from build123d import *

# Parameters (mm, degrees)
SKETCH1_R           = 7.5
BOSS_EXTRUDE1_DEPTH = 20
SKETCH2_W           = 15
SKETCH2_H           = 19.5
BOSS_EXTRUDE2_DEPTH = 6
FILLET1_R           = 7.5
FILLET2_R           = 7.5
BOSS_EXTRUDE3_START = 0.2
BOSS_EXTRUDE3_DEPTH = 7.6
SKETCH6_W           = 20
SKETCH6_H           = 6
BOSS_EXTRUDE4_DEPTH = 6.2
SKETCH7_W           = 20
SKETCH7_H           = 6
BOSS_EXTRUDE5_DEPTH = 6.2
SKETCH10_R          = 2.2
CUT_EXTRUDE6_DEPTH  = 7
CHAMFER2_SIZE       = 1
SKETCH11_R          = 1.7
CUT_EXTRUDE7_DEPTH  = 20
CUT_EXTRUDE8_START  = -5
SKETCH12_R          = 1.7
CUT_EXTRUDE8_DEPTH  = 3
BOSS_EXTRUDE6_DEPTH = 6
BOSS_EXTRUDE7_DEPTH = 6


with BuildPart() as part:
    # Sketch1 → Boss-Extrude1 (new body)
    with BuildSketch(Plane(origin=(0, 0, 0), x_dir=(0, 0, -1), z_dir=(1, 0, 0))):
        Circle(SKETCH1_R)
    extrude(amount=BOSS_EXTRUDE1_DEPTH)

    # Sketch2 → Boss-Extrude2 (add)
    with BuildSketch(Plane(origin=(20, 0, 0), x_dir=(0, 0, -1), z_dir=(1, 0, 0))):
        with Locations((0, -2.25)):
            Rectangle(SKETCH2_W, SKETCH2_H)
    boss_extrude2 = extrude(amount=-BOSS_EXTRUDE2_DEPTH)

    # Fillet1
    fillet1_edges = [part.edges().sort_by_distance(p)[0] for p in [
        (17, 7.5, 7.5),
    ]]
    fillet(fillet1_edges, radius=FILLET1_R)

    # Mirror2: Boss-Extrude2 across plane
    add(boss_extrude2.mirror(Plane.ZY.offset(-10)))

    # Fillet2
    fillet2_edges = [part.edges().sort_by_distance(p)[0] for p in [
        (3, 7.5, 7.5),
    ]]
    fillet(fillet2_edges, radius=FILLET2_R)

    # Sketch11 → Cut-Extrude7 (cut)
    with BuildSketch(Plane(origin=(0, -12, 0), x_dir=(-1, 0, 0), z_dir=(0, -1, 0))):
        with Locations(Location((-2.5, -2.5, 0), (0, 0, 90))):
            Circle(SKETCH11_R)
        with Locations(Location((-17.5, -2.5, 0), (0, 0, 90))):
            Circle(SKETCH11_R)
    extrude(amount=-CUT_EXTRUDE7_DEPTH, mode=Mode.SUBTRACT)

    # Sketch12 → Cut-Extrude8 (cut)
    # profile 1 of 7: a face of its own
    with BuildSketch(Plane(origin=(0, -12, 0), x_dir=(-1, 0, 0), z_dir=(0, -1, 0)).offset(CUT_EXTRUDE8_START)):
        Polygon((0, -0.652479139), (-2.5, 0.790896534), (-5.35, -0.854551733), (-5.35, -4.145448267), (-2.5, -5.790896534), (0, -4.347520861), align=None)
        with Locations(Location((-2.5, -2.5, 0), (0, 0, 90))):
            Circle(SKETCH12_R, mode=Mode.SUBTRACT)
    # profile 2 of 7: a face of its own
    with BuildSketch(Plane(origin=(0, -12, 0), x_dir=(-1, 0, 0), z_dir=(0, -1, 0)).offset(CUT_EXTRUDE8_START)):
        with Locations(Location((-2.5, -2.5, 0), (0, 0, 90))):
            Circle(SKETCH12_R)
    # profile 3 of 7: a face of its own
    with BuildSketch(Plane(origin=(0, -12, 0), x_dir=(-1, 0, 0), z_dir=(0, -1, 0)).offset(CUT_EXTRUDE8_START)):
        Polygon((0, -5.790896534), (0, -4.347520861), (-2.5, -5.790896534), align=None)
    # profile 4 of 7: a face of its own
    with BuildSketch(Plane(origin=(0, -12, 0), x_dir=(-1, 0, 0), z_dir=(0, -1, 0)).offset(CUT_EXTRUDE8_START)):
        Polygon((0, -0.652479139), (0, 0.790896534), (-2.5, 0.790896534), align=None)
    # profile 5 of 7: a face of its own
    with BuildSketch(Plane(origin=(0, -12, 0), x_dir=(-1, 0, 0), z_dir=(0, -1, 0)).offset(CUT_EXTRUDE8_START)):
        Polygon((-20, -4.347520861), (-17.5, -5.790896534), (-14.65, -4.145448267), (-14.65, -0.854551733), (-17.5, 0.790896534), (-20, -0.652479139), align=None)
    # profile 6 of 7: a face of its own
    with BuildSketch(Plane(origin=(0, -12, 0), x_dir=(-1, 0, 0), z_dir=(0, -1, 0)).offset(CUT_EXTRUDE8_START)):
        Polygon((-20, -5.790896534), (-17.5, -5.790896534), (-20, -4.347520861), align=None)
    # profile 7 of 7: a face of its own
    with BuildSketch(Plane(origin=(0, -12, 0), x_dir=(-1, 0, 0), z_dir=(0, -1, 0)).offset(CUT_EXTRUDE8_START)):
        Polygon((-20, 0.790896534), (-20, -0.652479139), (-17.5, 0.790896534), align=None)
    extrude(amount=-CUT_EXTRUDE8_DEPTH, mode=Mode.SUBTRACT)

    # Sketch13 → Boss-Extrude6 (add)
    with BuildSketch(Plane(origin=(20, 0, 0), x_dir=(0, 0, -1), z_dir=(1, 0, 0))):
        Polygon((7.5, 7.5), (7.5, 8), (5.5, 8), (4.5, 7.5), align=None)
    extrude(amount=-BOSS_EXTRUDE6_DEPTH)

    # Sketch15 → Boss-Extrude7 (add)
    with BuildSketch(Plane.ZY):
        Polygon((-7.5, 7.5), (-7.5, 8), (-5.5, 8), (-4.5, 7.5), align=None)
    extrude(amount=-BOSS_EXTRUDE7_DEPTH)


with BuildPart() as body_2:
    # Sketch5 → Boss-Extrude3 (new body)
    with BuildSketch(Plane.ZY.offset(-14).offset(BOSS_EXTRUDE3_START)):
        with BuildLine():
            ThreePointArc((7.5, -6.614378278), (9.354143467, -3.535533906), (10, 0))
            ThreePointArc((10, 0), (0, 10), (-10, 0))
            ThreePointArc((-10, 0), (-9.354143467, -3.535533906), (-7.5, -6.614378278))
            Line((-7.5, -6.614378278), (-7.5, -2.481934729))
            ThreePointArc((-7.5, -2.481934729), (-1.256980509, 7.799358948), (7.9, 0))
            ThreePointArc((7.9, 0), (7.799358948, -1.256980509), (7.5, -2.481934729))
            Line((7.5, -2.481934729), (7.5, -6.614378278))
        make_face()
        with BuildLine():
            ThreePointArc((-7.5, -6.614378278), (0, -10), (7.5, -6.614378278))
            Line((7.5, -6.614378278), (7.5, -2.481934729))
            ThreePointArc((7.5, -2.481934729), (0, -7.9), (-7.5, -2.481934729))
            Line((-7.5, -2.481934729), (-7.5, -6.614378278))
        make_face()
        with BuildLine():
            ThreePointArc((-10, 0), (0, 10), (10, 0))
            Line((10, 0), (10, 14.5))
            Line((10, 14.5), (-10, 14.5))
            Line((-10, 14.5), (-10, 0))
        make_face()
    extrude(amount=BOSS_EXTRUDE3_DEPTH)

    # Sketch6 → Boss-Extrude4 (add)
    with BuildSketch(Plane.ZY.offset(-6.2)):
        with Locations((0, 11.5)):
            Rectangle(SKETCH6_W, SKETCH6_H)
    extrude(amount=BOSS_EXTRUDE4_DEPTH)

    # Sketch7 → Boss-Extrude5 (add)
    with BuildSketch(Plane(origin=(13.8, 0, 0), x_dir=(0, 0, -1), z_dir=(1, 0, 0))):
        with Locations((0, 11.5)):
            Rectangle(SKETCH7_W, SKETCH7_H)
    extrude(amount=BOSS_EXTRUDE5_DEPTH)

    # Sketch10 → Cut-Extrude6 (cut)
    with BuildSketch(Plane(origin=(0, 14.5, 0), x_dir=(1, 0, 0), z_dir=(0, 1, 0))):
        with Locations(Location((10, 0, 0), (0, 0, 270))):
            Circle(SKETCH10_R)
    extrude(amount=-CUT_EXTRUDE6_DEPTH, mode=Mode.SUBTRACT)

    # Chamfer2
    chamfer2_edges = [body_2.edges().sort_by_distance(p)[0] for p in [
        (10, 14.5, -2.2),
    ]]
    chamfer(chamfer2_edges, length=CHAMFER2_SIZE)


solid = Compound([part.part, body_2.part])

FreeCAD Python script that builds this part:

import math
import FreeCAD as App
import Part
import Sketcher
from FreeCAD import Vector
Q = App.Units.Quantity


def edges_at(feature, points):
    """Names of the edges that pass closest to the given points."""
    edges = feature.Shape.Edges
    near = lambda p: min(range(len(edges)), key=lambda i: edges[i].distToShape(Part.Vertex(*p))[0])
    return sorted({f"Edge{near(p) + 1}" for p in points})


def add_polygon(sketch, points):
    """Adds a closed chain of lines whose ends are joined by coincident constraints."""
    first, n = sketch.GeometryCount, len(points)
    for a, b in zip(points, points[1:] + points[:1]):
        sketch.addGeometry(Part.LineSegment(App.Vector(*a, 0), App.Vector(*b, 0)), False)
    for i in range(n):
        sketch.addConstraint(Sketcher.Constraint("Coincident", first + i, 2, first + (i + 1) % n, 1))

doc = App.newDocument("Part")
body = doc.addObject("PartDesign::Body", "Body")

# Sketch on YZ plane
sketch1 = doc.addObject("Sketcher::SketchObject", "Sketch")
body.addObject(sketch1)
sketch1.AttachmentSupport = (doc.YZ_Plane, [""])
sketch1.MapMode = "FlatFace"
sketch1.addGeometry(Part.Circle(Vector(0, 0, 0), Vector(0, 0, 1), 7.5), False)
sketch1.addConstraint(Sketcher.Constraint("Coincident", 0, 3, -1, 1))
sketch1.addConstraint(Sketcher.Constraint("Diameter", 0, Q("15 mm")))
pad1 = doc.addObject("PartDesign::Pad", "Pad")
body.addObject(pad1)
pad1.Profile = sketch1
pad1.Length = 20

# Sketch on YZ plane
sketch2 = doc.addObject("Sketcher::SketchObject", "Sketch001")
body.addObject(sketch2)
sketch2.AttachmentSupport = (doc.YZ_Plane, [""])
sketch2.MapMode = "FlatFace"
sketch2.AttachmentOffset = App.Placement(Vector(0, 0, 20), App.Rotation())
add_polygon(sketch2, [(7.5, 7.5), (-12, 7.5), (-12, -7.5), (7.5, -7.5)])  # lines 0-3
sketch2.addConstraint(Sketcher.Constraint("Horizontal", 0))
sketch2.addConstraint(Sketcher.Constraint("Vertical", 1))
sketch2.addConstraint(Sketcher.Constraint("Horizontal", 2))
sketch2.addConstraint(Sketcher.Constraint("Vertical", 3))
sketch2.addConstraint(Sketcher.Constraint("DistanceY", 1, 2, 1, 1, Q("15 mm")))
sketch2.addConstraint(Sketcher.Constraint("DistanceX", 0, 2, 0, 1, Q("19.5 mm")))
sketch2.addConstraint(Sketcher.Constraint("DistanceX", 0, 2, -1, 1, Q("12 mm")))
sketch2.addConstraint(Sketcher.Constraint("DistanceY", -1, 1, 0, 2, Q("7.5 mm")))
pad2 = doc.addObject("PartDesign::Pad", "Pad001")
body.addObject(pad2)
pad2.Profile = sketch2
pad2.Length = 6
pad2.Reversed = True
doc.recompute()

fillet = doc.addObject("PartDesign::Fillet", "Fillet")
body.addObject(fillet)
fillet.Base = (pad2, edges_at(pad2, [(17, 7.5, 7.5)]))
fillet.Radius = 7.5
doc.recompute()

datumplane = doc.addObject("PartDesign::Plane", "DatumPlane")
body.addObject(datumplane)
datumplane.AttachmentSupport = (doc.YZ_Plane, [""])
datumplane.MapMode = "FlatFace"
datumplane.AttachmentOffset = App.Placement(Vector(0, 0, 10), App.Rotation())
mirrored = doc.addObject("PartDesign::Mirrored", "Mirrored")
body.addObject(mirrored)
mirrored.Originals = [pad2]
mirrored.MirrorPlane = (datumplane, [""])
body.Tip = mirrored
doc.recompute()

fillet2 = doc.addObject("PartDesign::Fillet", "Fillet001")
body.addObject(fillet2)
fillet2.Base = (mirrored, edges_at(mirrored, [(3, 7.5, 7.5)]))
fillet2.Radius = 7.5

# Sketch on XZ plane
sketch3 = doc.addObject("Sketcher::SketchObject", "Sketch002")
body.addObject(sketch3)
sketch3.AttachmentSupport = (doc.XZ_Plane, [""])
sketch3.MapMode = "FlatFace"
sketch3.AttachmentOffset = App.Placement(Vector(0, 0, 12), App.Rotation())
sketch3.addGeometry(Part.Circle(Vector(2.5, 2.5, 0), Vector(0, 0, 1), 1.7), False)
sketch3.addGeometry(Part.Circle(Vector(17.5, 2.5, 0), Vector(0, 0, 1), 1.7), False)
sketch3.addConstraint(Sketcher.Constraint("Equal", 0, 1))
sketch3.addConstraint(Sketcher.Constraint("Horizontal", 0, 3, 1, 3))
sketch3.addConstraint(Sketcher.Constraint("Diameter", 0, Q("3.4 mm")))
sketch3.addConstraint(Sketcher.Constraint("DistanceX", 0, 3, 1, 3, Q("15 mm")))
sketch3.addConstraint(Sketcher.Constraint("DistanceX", -1, 1, 0, 3, Q("2.5 mm")))
sketch3.addConstraint(Sketcher.Constraint("DistanceY", -1, 1, 0, 3, Q("2.5 mm")))
pocket1 = doc.addObject("PartDesign::Pocket", "Pocket")
body.addObject(pocket1)
pocket1.Profile = sketch3
pocket1.Length = 20

# Sketch on XZ plane
sketch4 = doc.addObject("Sketcher::SketchObject", "Sketch003")
body.addObject(sketch4)
sketch4.AttachmentSupport = (doc.XZ_Plane, [""])
sketch4.MapMode = "FlatFace"
sketch4.AttachmentOffset = App.Placement(Vector(0, 0, 7), App.Rotation())
add_polygon(sketch4, [(0, -0.790897), (2.5, -0.790897), (5.35, 0.854552), (5.35, 4.145448), (2.5, 5.790897), (0, 5.790897)])  # lines 0-5
add_polygon(sketch4, [(17.5, 5.790897), (14.65, 4.145448), (14.65, 0.854552), (17.5, -0.790897), (20, -0.790897), (20, 5.790897)])  # lines 6-11
sketch4.addConstraint(Sketcher.Constraint("Horizontal", 0))
sketch4.addConstraint(Sketcher.Constraint("Vertical", 2))
sketch4.addConstraint(Sketcher.Constraint("Horizontal", 4))
sketch4.addConstraint(Sketcher.Constraint("Vertical", 5))
sketch4.addConstraint(Sketcher.Constraint("Vertical", 7))
sketch4.addConstraint(Sketcher.Constraint("Horizontal", 9))
sketch4.addConstraint(Sketcher.Constraint("Vertical", 10))
sketch4.addConstraint(Sketcher.Constraint("Horizontal", 11))
sketch4.addConstraint(Sketcher.Constraint("PointOnObject", 4, 2, -2))
sketch4.addConstraint(Sketcher.Constraint("Parallel", 1, 6))
sketch4.addConstraint(Sketcher.Constraint("Parallel", 3, 8))
sketch4.addConstraint(Sketcher.Constraint("Horizontal", 2, 2, 6, 2))
sketch4.addConstraint(Sketcher.Constraint("Horizontal", 1, 2, 7, 2))
sketch4.addConstraint(Sketcher.Constraint("Horizontal", 5, 2, 8, 2))
sketch4.addConstraint(Sketcher.Constraint("Horizontal", 4, 2, 10, 2))
sketch4.addConstraint(Sketcher.Constraint("Vertical", 0, 2, 3, 2))
sketch4.addConstraint(Sketcher.Constraint("Vertical", 8, 2, 11, 2))
sketch4.addConstraint(Sketcher.Constraint("Equal", 4, 9))
sketch4.addConstraint(Sketcher.Constraint("Angle", 1, Q("30 deg")))
sketch4.addConstraint(Sketcher.Constraint("DistanceX", 0, 1, 0, 2, Q("2.5 mm")))
sketch4.addConstraint(Sketcher.Constraint("DistanceX", -1, 1, 9, 2, Q("20 mm")))
sketch4.addConstraint(Sketcher.Constraint("DistanceX", 2, 2, 6, 2, Q("9.3 mm")))
sketch4.addConstraint(Sketcher.Constraint("DistanceY", 2, 1, 2, 2, Q("3.290897 mm")))
sketch4.addConstraint(Sketcher.Constraint("DistanceY", -1, 1, 1, 2, Q("0.854552 mm")))
pocket2 = doc.addObject("PartDesign::Pocket", "Pocket001")
body.addObject(pocket2)
pocket2.Profile = sketch4
pocket2.Length = 3

# Sketch on YZ plane
sketch5 = doc.addObject("Sketcher::SketchObject", "Sketch004")
body.addObject(sketch5)
sketch5.AttachmentSupport = (doc.YZ_Plane, [""])
sketch5.MapMode = "FlatFace"
sketch5.AttachmentOffset = App.Placement(Vector(0, 0, 20), App.Rotation())
add_polygon(sketch5, [(7.5, -7.5), (8, -7.5), (8, -5.5), (7.5, -4.5)])  # lines 0-3
sketch5.addConstraint(Sketcher.Constraint("Horizontal", 0))
sketch5.addConstraint(Sketcher.Constraint("Vertical", 1))
sketch5.addConstraint(Sketcher.Constraint("Vertical", 3))
sketch5.addConstraint(Sketcher.Constraint("DistanceY", 1, 1, 1, 2, Q("2 mm")))
sketch5.addConstraint(Sketcher.Constraint("DistanceY", 3, 2, 3, 1, Q("3 mm")))
sketch5.addConstraint(Sketcher.Constraint("DistanceX", 0, 1, 0, 2, Q("0.5 mm")))
sketch5.addConstraint(Sketcher.Constraint("DistanceX", -1, 1, 0, 2, Q("8 mm")))
sketch5.addConstraint(Sketcher.Constraint("DistanceY", 0, 2, -1, 1, Q("7.5 mm")))
pad3 = doc.addObject("PartDesign::Pad", "Pad002")
body.addObject(pad3)
pad3.Profile = sketch5
pad3.Length = 6
pad3.Reversed = True

# Sketch on YZ plane
sketch6 = doc.addObject("Sketcher::SketchObject", "Sketch005")
body.addObject(sketch6)
sketch6.AttachmentSupport = (doc.YZ_Plane, [""])
sketch6.MapMode = "FlatFace"
add_polygon(sketch6, [(8, -7.5), (7.5, -7.5), (7.5, -4.5), (8, -5.5)])  # lines 0-3
sketch6.addConstraint(Sketcher.Constraint("Horizontal", 0))
sketch6.addConstraint(Sketcher.Constraint("Vertical", 1))
sketch6.addConstraint(Sketcher.Constraint("Vertical", 3))
sketch6.addConstraint(Sketcher.Constraint("DistanceY", 1, 1, 1, 2, Q("3 mm")))
sketch6.addConstraint(Sketcher.Constraint("DistanceY", 3, 2, 3, 1, Q("2 mm")))
sketch6.addConstraint(Sketcher.Constraint("DistanceX", 0, 2, 0, 1, Q("0.5 mm")))
sketch6.addConstraint(Sketcher.Constraint("DistanceX", -1, 1, 2, 2, Q("8 mm")))
sketch6.addConstraint(Sketcher.Constraint("DistanceY", 0, 2, -1, 1, Q("7.5 mm")))
pad4 = doc.addObject("PartDesign::Pad", "Pad003")
body.addObject(pad4)
pad4.Profile = sketch6
pad4.Length = 6
body2 = doc.addObject("PartDesign::Body", "Body001")

# Sketch on YZ plane
sketch7 = doc.addObject("Sketcher::SketchObject", "Sketch006")
body2.addObject(sketch7)
sketch7.AttachmentSupport = (doc.getObject("YZ_Plane001"), [""])
sketch7.MapMode = "FlatFace"
sketch7.AttachmentOffset = App.Placement(Vector(0, 0, 13.8), App.Rotation())
sketch7.addGeometry(Part.ArcOfCircle(Part.Circle(Vector(0, 0, 0), Vector(0, 0, 1), 10), math.radians(-131.409622), math.radians(-90)), False)
sketch7.addGeometry(Part.ArcOfCircle(Part.Circle(Vector(0, 0, 0), Vector(0, 0, 1), 10), math.radians(131.409622), math.radians(228.590378)), False)
sketch7.addGeometry(Part.ArcOfCircle(Part.Circle(Vector(0, 0, 0), Vector(0, 0, 1), 10), math.radians(90), math.radians(131.409622)), False)
sketch7.addGeometry(Part.LineSegment(Vector(0, 10, 0), Vector(14.5, 10, 0)), False)
sketch7.addGeometry(Part.LineSegment(Vector(14.5, 10, 0), Vector(14.5, -10, 0)), False)
sketch7.addGeometry(Part.LineSegment(Vector(14.5, -10, 0), Vector(0, -10, 0)), False)
sketch7.addGeometry(Part.ArcOfCircle(Part.Circle(Vector(0, 0, 0), Vector(0, 0, 1), 7.9), math.radians(-108.310652), math.radians(90)), False)
sketch7.addGeometry(Part.ArcOfCircle(Part.Circle(Vector(0, 0, 0), Vector(0, 0, 1), 7.9), math.radians(90), math.radians(108.310652)), False)
sketch7.addGeometry(Part.ArcOfCircle(Part.Circle(Vector(0, 0, 0), Vector(0, 0, 1), 7.9), math.radians(108.310652), math.radians(251.689348)), False)
sketch7.addConstraint(Sketcher.Constraint("Tangent", 0, 1, 1, 2))
sketch7.addConstraint(Sketcher.Constraint("Tangent", 1, 1, 2, 2))
sketch7.addConstraint(Sketcher.Constraint("Tangent", 2, 1, 3, 1))
sketch7.addConstraint(Sketcher.Constraint("Coincident", 3, 2, 4, 1))
sketch7.addConstraint(Sketcher.Constraint("Coincident", 4, 2, 5, 1))
sketch7.addConstraint(Sketcher.Constraint("Tangent", 5, 2, 0, 2))
sketch7.addConstraint(Sketcher.Constraint("Tangent", 6, 2, 7, 1))
sketch7.addConstraint(Sketcher.Constraint("Tangent", 7, 2, 8, 1))
sketch7.addConstraint(Sketcher.Constraint("Tangent", 8, 2, 6, 1))
sketch7.addConstraint(Sketcher.Constraint("Horizontal", 3))
sketch7.addConstraint(Sketcher.Constraint("Vertical", 4))
sketch7.addConstraint(Sketcher.Constraint("Horizontal", 5))
sketch7.addConstraint(Sketcher.Constraint("Coincident", 0, 3, -1, 1))
sketch7.addConstraint(Sketcher.Constraint("Coincident", 2, 3, -1, 1))
sketch7.addConstraint(Sketcher.Constraint("Coincident", 6, 3, -1, 1))
sketch7.addConstraint(Sketcher.Constraint("PointOnObject", 6, 2, -2))
sketch7.addConstraint(Sketcher.Constraint("Horizontal", 1, 1, 7, 2))
sketch7.addConstraint(Sketcher.Constraint("Horizontal", 0, 1, 8, 2))
sketch7.addConstraint(Sketcher.Constraint("Vertical", 0, 1, 1, 1))
sketch7.addConstraint(Sketcher.Constraint("Radius", 0, Q("10 mm")))
sketch7.addConstraint(Sketcher.Constraint("Radius", 6, Q("7.9 mm")))
sketch7.addConstraint(Sketcher.Constraint("DistanceX", 3, 1, 3, 2, Q("14.5 mm")))
sketch7.addConstraint(Sketcher.Constraint("DistanceY", 0, 1, -1, 1, Q("7.5 mm")))
pad5 = doc.addObject("PartDesign::Pad", "Pad004")
body2.addObject(pad5)
pad5.Profile = sketch7
pad5.Length = 7.6
pad5.Reversed = True

# Sketch on YZ plane
sketch8 = doc.addObject("Sketcher::SketchObject", "Sketch007")
body2.addObject(sketch8)
sketch8.AttachmentSupport = (doc.getObject("YZ_Plane001"), [""])
sketch8.MapMode = "FlatFace"
sketch8.AttachmentOffset = App.Placement(Vector(0, 0, 6.2), App.Rotation())
add_polygon(sketch8, [(14.5, -10), (8.5, -10), (8.5, 10), (14.5, 10)])  # lines 0-3
sketch8.addConstraint(Sketcher.Constraint("Horizontal", 0))
sketch8.addConstraint(Sketcher.Constraint("Vertical", 1))
sketch8.addConstraint(Sketcher.Constraint("Horizontal", 2))
sketch8.addConstraint(Sketcher.Constraint("Vertical", 3))
sketch8.addConstraint(Sketcher.Constraint("DistanceX", 0, 2, 0, 1, Q("6 mm")))
sketch8.addConstraint(Sketcher.Constraint("DistanceY", 1, 1, 1, 2, Q("20 mm")))
sketch8.addConstraint(Sketcher.Constraint("DistanceY", 0, 2, -1, 1, Q("10 mm")))
sketch8.addConstraint(Sketcher.Constraint("DistanceX", -1, 1, 0, 2, Q("8.5 mm")))
pad6 = doc.addObject("PartDesign::Pad", "Pad005")
body2.addObject(pad6)
pad6.Profile = sketch8
pad6.Length = 6.2
pad6.Reversed = True

# Sketch on YZ plane
sketch9 = doc.addObject("Sketcher::SketchObject", "Sketch008")
body2.addObject(sketch9)
sketch9.AttachmentSupport = (doc.getObject("YZ_Plane001"), [""])
sketch9.MapMode = "FlatFace"
sketch9.AttachmentOffset = App.Placement(Vector(0, 0, 13.8), App.Rotation())
add_polygon(sketch9, [(14.5, 10), (8.5, 10), (8.5, -10), (14.5, -10)])  # lines 0-3
sketch9.addConstraint(Sketcher.Constraint("Horizontal", 0))
sketch9.addConstraint(Sketcher.Constraint("Vertical", 1))
sketch9.addConstraint(Sketcher.Constraint("Horizontal", 2))
sketch9.addConstraint(Sketcher.Constraint("Vertical", 3))
sketch9.addConstraint(Sketcher.Constraint("DistanceX", 0, 2, 0, 1, Q("6 mm")))
sketch9.addConstraint(Sketcher.Constraint("DistanceY", 1, 2, 1, 1, Q("20 mm")))
sketch9.addConstraint(Sketcher.Constraint("DistanceY", -1, 1, 0, 2, Q("10 mm")))
sketch9.addConstraint(Sketcher.Constraint("DistanceX", -1, 1, 0, 2, Q("8.5 mm")))
pad7 = doc.addObject("PartDesign::Pad", "Pad006")
body2.addObject(pad7)
pad7.Profile = sketch9
pad7.Length = 6.2

# Sketch on XZ plane
sketch10 = doc.addObject("Sketcher::SketchObject", "Sketch009")
body2.addObject(sketch10)
sketch10.AttachmentSupport = (doc.getObject("XZ_Plane001"), [""])
sketch10.MapMode = "FlatFace"
sketch10.AttachmentOffset = App.Placement(Vector(0, 0, -14.5), App.Rotation())
sketch10.addGeometry(Part.Circle(Vector(10, 0, 0), Vector(0, 0, 1), 2.2), False)
sketch10.addConstraint(Sketcher.Constraint("PointOnObject", 0, 3, -1))
sketch10.addConstraint(Sketcher.Constraint("Diameter", 0, Q("4.4 mm")))
sketch10.addConstraint(Sketcher.Constraint("DistanceX", -1, 1, 0, 3, Q("10 mm")))
pocket3 = doc.addObject("PartDesign::Pocket", "Pocket002")
body2.addObject(pocket3)
pocket3.Profile = sketch10
pocket3.Length = 7
pocket3.Reversed = True
doc.recompute()

chamfer = doc.addObject("PartDesign::Chamfer", "Chamfer")
body2.addObject(chamfer)
chamfer.Base = (pocket3, edges_at(pocket3, [(10, 14.5, -2.2)]))
chamfer.Size = 1

doc.recompute()
